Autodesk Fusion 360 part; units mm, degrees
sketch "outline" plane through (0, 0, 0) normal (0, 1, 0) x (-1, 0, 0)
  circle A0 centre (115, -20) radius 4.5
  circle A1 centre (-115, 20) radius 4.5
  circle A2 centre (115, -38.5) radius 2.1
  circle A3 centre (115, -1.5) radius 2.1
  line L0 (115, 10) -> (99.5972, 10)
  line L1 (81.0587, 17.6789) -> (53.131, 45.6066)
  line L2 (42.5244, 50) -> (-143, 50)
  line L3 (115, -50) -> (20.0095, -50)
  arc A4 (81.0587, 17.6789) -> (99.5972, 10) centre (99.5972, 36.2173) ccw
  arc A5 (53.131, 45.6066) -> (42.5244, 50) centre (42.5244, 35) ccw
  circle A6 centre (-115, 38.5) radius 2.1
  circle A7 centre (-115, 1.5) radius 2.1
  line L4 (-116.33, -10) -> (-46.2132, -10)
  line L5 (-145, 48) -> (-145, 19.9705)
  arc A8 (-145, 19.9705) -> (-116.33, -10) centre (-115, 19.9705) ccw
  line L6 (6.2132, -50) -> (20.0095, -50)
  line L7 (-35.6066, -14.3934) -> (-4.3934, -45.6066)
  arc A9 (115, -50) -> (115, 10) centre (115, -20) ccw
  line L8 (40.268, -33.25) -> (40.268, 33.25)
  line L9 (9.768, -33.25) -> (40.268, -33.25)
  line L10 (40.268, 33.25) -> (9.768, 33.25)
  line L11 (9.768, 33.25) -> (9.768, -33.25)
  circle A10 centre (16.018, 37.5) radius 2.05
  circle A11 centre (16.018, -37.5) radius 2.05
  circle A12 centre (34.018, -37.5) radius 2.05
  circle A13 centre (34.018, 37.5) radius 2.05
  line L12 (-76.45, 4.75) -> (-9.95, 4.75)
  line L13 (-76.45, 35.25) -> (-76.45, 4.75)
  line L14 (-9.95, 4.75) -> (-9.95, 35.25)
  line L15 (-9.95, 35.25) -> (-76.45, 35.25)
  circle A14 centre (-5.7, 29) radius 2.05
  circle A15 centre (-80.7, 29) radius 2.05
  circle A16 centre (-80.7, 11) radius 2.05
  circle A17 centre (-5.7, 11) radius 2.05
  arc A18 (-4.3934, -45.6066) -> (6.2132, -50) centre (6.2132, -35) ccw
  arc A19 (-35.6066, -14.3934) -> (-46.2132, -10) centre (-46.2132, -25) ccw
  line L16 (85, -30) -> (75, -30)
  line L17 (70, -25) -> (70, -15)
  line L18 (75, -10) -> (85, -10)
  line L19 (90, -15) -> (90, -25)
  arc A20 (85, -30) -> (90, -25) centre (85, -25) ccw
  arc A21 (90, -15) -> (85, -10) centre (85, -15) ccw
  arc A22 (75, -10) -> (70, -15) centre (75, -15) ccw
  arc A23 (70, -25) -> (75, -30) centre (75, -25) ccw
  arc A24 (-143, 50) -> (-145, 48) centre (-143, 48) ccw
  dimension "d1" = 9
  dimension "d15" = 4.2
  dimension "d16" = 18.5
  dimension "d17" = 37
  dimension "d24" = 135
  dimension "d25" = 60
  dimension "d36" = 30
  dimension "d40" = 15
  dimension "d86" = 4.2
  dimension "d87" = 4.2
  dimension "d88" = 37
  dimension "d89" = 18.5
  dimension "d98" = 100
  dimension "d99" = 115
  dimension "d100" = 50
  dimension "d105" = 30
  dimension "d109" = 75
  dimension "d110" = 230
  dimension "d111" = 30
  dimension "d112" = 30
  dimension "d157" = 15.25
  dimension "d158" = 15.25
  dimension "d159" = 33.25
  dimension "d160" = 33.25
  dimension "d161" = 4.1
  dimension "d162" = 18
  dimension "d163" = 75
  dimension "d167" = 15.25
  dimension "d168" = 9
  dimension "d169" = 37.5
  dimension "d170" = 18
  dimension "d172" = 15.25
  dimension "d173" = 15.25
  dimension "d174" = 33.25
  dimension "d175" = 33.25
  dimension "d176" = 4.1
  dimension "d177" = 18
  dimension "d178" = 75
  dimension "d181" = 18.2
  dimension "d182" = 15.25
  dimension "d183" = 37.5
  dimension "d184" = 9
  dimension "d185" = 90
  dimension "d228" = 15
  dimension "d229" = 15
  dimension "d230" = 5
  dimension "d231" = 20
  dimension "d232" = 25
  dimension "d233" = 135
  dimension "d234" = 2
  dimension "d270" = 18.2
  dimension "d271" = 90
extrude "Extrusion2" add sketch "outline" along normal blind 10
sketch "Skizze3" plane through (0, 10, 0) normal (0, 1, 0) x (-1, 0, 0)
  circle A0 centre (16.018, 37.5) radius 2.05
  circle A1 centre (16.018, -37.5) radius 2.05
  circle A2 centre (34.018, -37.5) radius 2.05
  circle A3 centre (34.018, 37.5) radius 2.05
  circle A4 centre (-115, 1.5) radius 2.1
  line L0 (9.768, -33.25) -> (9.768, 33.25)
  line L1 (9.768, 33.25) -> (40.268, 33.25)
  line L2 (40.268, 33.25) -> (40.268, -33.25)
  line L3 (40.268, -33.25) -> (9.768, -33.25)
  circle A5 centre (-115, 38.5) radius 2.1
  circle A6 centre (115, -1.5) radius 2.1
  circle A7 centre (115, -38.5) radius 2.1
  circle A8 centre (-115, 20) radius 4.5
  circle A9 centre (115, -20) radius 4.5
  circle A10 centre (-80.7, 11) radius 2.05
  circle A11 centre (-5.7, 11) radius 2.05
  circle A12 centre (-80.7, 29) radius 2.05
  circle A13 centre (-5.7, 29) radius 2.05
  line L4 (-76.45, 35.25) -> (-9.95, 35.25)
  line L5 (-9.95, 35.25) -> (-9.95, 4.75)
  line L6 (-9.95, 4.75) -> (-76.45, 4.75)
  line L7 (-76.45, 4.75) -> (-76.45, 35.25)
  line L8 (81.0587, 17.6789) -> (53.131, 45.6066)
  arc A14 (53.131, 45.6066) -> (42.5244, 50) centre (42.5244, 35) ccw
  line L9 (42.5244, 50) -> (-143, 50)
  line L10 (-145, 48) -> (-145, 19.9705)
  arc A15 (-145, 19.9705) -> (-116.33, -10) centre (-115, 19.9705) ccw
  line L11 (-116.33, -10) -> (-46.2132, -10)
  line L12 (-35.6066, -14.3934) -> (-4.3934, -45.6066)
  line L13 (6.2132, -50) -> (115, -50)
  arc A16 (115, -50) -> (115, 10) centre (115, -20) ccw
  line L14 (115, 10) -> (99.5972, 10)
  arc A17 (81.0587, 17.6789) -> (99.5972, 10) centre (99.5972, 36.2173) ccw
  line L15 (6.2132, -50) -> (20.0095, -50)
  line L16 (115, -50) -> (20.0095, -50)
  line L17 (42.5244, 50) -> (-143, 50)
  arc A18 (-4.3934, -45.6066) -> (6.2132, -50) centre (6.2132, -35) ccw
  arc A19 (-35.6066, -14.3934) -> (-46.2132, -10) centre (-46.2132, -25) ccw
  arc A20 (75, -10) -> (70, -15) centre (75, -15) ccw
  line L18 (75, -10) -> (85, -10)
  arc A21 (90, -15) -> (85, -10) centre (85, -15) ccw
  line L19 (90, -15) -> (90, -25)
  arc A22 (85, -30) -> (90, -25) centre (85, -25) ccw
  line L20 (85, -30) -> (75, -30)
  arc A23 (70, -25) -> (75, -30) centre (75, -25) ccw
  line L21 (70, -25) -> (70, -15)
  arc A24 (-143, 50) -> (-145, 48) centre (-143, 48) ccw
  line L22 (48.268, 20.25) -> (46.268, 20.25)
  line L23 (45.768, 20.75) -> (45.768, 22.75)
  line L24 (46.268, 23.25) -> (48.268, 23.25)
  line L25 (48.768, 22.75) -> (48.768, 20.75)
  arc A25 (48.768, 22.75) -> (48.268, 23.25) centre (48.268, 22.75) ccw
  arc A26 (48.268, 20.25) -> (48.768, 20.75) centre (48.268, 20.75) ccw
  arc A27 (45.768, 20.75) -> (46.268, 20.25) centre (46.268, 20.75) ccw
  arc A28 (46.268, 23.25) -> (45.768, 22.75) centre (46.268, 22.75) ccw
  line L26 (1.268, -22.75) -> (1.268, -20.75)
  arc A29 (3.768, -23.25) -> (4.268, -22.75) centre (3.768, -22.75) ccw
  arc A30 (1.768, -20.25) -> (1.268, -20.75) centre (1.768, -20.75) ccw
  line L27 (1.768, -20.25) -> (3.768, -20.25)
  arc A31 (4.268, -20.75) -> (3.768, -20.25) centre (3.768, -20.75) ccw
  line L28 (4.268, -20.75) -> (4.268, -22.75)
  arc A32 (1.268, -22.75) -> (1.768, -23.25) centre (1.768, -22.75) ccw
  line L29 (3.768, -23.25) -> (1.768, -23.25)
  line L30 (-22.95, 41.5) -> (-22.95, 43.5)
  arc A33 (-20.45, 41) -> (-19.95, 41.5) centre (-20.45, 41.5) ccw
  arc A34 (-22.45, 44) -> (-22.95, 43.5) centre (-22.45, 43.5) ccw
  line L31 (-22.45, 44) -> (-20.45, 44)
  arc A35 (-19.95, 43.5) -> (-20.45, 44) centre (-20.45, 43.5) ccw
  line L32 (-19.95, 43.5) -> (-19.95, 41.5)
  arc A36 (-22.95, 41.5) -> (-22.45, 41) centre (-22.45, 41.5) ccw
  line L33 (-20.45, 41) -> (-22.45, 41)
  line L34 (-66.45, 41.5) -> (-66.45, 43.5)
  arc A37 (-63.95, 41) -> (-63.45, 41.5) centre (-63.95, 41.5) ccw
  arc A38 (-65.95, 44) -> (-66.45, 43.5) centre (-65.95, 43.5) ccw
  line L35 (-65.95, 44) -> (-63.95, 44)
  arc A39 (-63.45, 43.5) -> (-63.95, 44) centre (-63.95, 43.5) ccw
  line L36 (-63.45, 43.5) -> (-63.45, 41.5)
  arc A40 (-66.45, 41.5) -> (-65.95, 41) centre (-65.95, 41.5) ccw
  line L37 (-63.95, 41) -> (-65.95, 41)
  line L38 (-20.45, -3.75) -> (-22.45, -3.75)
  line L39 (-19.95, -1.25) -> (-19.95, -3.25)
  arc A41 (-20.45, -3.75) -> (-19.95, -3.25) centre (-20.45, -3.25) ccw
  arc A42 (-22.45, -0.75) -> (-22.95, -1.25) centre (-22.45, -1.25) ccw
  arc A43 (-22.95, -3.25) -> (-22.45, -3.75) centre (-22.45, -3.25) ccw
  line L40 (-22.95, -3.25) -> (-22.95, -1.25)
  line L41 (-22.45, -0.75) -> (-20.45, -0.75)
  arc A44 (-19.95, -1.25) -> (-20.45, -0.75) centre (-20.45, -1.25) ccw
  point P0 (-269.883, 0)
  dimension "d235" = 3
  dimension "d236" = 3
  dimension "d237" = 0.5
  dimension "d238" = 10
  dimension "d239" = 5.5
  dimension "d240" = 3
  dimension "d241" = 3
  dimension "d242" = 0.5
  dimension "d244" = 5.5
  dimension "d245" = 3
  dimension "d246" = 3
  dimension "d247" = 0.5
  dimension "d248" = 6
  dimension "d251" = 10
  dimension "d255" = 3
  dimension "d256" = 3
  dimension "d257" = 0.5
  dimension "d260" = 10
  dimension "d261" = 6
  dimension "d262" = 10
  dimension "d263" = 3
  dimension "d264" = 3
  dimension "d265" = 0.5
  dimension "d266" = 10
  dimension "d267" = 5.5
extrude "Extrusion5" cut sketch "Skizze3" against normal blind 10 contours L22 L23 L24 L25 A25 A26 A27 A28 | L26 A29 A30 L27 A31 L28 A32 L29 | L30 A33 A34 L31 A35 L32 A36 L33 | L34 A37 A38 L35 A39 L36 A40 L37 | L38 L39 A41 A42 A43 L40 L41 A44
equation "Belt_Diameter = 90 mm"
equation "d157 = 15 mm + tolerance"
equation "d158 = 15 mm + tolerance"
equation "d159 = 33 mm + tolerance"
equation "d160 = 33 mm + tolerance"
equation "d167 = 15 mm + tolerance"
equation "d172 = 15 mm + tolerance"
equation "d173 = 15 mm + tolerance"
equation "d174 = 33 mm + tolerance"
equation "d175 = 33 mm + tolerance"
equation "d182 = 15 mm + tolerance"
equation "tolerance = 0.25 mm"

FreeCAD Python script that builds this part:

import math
import FreeCAD as App
import Part
import Sketcher
Q = App.Units.Quantity


def add_polygon(sketch, points):
    """Adds a closed chain of lines whose ends are joined by coincident constraints."""
    first, n = sketch.GeometryCount, len(points)
    for a, b in zip(points, points[1:] + points[:1]):
        sketch.addGeometry(Part.LineSegment(App.Vector(*a, 0), App.Vector(*b, 0)), False)
    for i in range(n):
        sketch.addConstraint(Sketcher.Constraint("Coincident", first + i, 2, first + (i + 1) % n, 1))

doc = App.newDocument("Part")
body = doc.addObject("PartDesign::Body", "Body")

sketch1 = body.newObject("Sketcher::SketchObject", "Sketch")
sketch1.AttachmentSupport = (doc.getObject("XZ_Plane"), [""])
sketch1.MapMode = "FlatFace"
sketch1.addGeometry(Part.ArcOfCircle(Part.Circle(App.Vector(-115, -20, 0), App.Vector(0, 0, 1), 30), math.radians(90), math.radians(270)), False)
sketch1.addGeometry(Part.LineSegment(App.Vector(-115, 10, 0), App.Vector(-99.6, 10, 0)), False)
sketch1.addGeometry(Part.ArcOfCircle(Part.Circle(App.Vector(-99.6, 36.2, 0), App.Vector(0, 0, 1), 26.2), math.radians(-90), math.radians(-45)), False)
sketch1.addGeometry(Part.LineSegment(App.Vector(-81.1, 17.7, 0), App.Vector(-53.1, 45.6, 0)), False)
sketch1.addGeometry(Part.ArcOfCircle(Part.Circle(App.Vector(-42.5, 35, 0), App.Vector(0, 0, 1), 15), math.radians(90), math.radians(135)), False)
sketch1.addGeometry(Part.LineSegment(App.Vector(-42.5, 50, 0), App.Vector(143, 50, 0)), False)
sketch1.addGeometry(Part.ArcOfCircle(Part.Circle(App.Vector(143, 48, 0), App.Vector(0, 0, 1), 2), math.radians(0), math.radians(90)), False)
sketch1.addGeometry(Part.LineSegment(App.Vector(145, 48, 0), App.Vector(145, 20, 0)), False)
sketch1.addGeometry(Part.ArcOfCircle(Part.Circle(App.Vector(115, 20, 0), App.Vector(0, 0, 1), 30), math.radians(-87), math.radians(0)), False)
sketch1.addGeometry(Part.LineSegment(App.Vector(116.3, -10, 0), App.Vector(46.2, -10, 0)), False)
sketch1.addGeometry(Part.ArcOfCircle(Part.Circle(App.Vector(46.2, -25, 0), App.Vector(0, 0, 1), 15), math.radians(90), math.radians(135)), False)
sketch1.addGeometry(Part.LineSegment(App.Vector(35.6, -14.4, 0), App.Vector(4.4, -45.6, 0)), False)
sketch1.addGeometry(Part.ArcOfCircle(Part.Circle(App.Vector(-6.2, -35, 0), App.Vector(0, 0, 1), 15), math.radians(-90), math.radians(-45)), False)
sketch1.addGeometry(Part.LineSegment(App.Vector(-6.2, -50, 0), App.Vector(-115, -50, 0)), False)
sketch1.addGeometry(Part.Circle(App.Vector(-16, -37.5, 0), App.Vector(0, 0, 1), 2), False)
sketch1.addGeometry(Part.Circle(App.Vector(-34, -37.5, 0), App.Vector(0, 0, 1), 2), False)
sketch1.addGeometry(Part.Circle(App.Vector(-115, -38.5, 0), App.Vector(0, 0, 1), 2.1), False)
sketch1.addGeometry(Part.ArcOfCircle(Part.Circle(App.Vector(-85, -25, 0), App.Vector(0, 0, 1), 5), math.radians(180), math.radians(270)), False)
sketch1.addGeometry(Part.LineSegment(App.Vector(-85, -30, 0), App.Vector(-75, -30, 0)), False)
sketch1.addGeometry(Part.ArcOfCircle(Part.Circle(App.Vector(-75, -25, 0), App.Vector(0, 0, 1), 5), math.radians(-90), math.radians(0)), False)
sketch1.addGeometry(Part.LineSegment(App.Vector(-70, -25, 0), App.Vector(-70, -15, 0)), False)
sketch1.addGeometry(Part.ArcOfCircle(Part.Circle(App.Vector(-75, -15, 0), App.Vector(0, 0, 1), 5), math.radians(0), math.radians(90)), False)
sketch1.addGeometry(Part.LineSegment(App.Vector(-75, -10, 0), App.Vector(-85, -10, 0)), False)
sketch1.addGeometry(Part.ArcOfCircle(Part.Circle(App.Vector(-85, -15, 0), App.Vector(0, 0, 1), 5), math.radians(90), math.radians(180)), False)
sketch1.addGeometry(Part.LineSegment(App.Vector(-90, -15, 0), App.Vector(-90, -25, 0)), False)
sketch1.addGeometry(Part.Circle(App.Vector(-115, -20, 0), App.Vector(0, 0, 1), 4.5), False)
sketch1.addGeometry(Part.Circle(App.Vector(-115, -1.5, 0), App.Vector(0, 0, 1), 2.1), False)
sketch1.addGeometry(Part.Circle(App.Vector(115, 1.5, 0), App.Vector(0, 0, 1), 2.1), False)
sketch1.addGeometry(Part.Circle(App.Vector(80.7, 11, 0), App.Vector(0, 0, 1), 2), False)
sketch1.addGeometry(Part.Circle(App.Vector(115, 20, 0), App.Vector(0, 0, 1), 4.5), False)
sketch1.addGeometry(Part.Circle(App.Vector(5.7, 11, 0), App.Vector(0, 0, 1), 2), False)
add_polygon(sketch1, [(9.9, 4.8), (76.5, 4.8), (76.5, 35.2), (9.9, 35.2)])
sketch1.addGeometry(Part.Circle(App.Vector(80.7, 29, 0), App.Vector(0, 0, 1), 2), False)
sketch1.addGeometry(Part.Circle(App.Vector(115, 38.5, 0), App.Vector(0, 0, 1), 2.1), False)
sketch1.addGeometry(Part.Circle(App.Vector(5.7, 29, 0), App.Vector(0, 0, 1), 2), False)
add_polygon(sketch1, [(-40.3, 33.2), (-40.3, -33.2), (-9.8, -33.2), (-9.8, 33.2)])
sketch1.addGeometry(Part.Circle(App.Vector(-16, 37.5, 0), App.Vector(0, 0, 1), 2), False)
sketch1.addGeometry(Part.Circle(App.Vector(-34, 37.5, 0), App.Vector(0, 0, 1), 2), False)
sketch1.addConstraint([
    Sketcher.Constraint("Tangent", 0, 1, 1, 1),
    Sketcher.Constraint("Tangent", 1, 2, 2, 1),
    Sketcher.Constraint("Tangent", 2, 2, 3, 1),
    Sketcher.Constraint("Tangent", 3, 2, 4, 2),
    Sketcher.Constraint("Tangent", 4, 1, 5, 1),
    Sketcher.Constraint("Tangent", 5, 2, 6, 2),
    Sketcher.Constraint("Tangent", 6, 1, 7, 1),
    Sketcher.Constraint("Tangent", 7, 2, 8, 2),
    Sketcher.Constraint("Coincident", 8, 1, 9, 1),
    Sketcher.Constraint("Tangent", 9, 2, 10, 1),
    Sketcher.Constraint("Tangent", 10, 2, 11, 1),
    Sketcher.Constraint("Tangent", 11, 2, 12, 2),
    Sketcher.Constraint("Tangent", 12, 1, 13, 1),
    Sketcher.Constraint("Tangent", 13, 2, 0, 2),
    Sketcher.Constraint("Tangent", 17, 2, 18, 1),
    Sketcher.Constraint("Tangent", 18, 2, 19, 1),
    Sketcher.Constraint("Tangent", 19, 2, 20, 1),
    Sketcher.Constraint("Tangent", 20, 2, 21, 1),
    Sketcher.Constraint("Tangent", 21, 2, 22, 1),
    Sketcher.Constraint("Tangent", 22, 2, 23, 1),
    Sketcher.Constraint("Tangent", 23, 2, 24, 1),
    Sketcher.Constraint("Tangent", 24, 2, 17, 1),
    Sketcher.Constraint("Horizontal", 1),
    Sketcher.Constraint("Horizontal", 5),
    Sketcher.Constraint("Vertical", 7),
    Sketcher.Constraint("Horizontal", 9),
    Sketcher.Constraint("Horizontal", 13),
    Sketcher.Constraint("Horizontal", 18),
    Sketcher.Constraint("Vertical", 20),
    Sketcher.Constraint("Horizontal", 22),
    Sketcher.Constraint("Vertical", 24),
    Sketcher.Constraint("Horizontal", 31),
    Sketcher.Constraint("Vertical", 32),
    Sketcher.Constraint("Horizontal", 33),
    Sketcher.Constraint("Vertical", 34),
    Sketcher.Constraint("Vertical", 38),
    Sketcher.Constraint("Horizontal", 39),
    Sketcher.Constraint("Vertical", 40),
    Sketcher.Constraint("Horizontal", 41),
    Sketcher.Constraint("Coincident", 25, 3, 0, 3),
    Sketcher.Constraint("Equal", 0, 8),
    Sketcher.Constraint("Equal", 4, 10),
    Sketcher.Constraint("Equal", 10, 12),
    Sketcher.Constraint("Equal", 14, 15),
    Sketcher.Constraint("Equal", 17, 19),
    Sketcher.Constraint("Equal", 19, 21),
    Sketcher.Constraint("Equal", 21, 23),
    Sketcher.Constraint("Equal", 16, 26),
    Sketcher.Constraint("Equal", 26, 27),
    Sketcher.Constraint("Equal", 15, 28),
    Sketcher.Constraint("Equal", 25, 29),
    Sketcher.Constraint("Equal", 28, 30),
    Sketcher.Constraint("Equal", 30, 35),
    Sketcher.Constraint("Equal", 27, 36),
    Sketcher.Constraint("Equal", 35, 37),
    Sketcher.Constraint("Equal", 37, 42),
    Sketcher.Constraint("Equal", 42, 43),
    Sketcher.Constraint("Symmetric", 26, 3, 27, 3, -1, 1),
    Sketcher.Constraint("Symmetric", 0, 3, 29, 3, -1, 1),
    Sketcher.Constraint("Symmetric", 16, 3, 36, 3, -1, 1),
    Sketcher.Constraint("Symmetric", 14, 3, 42, 3, -1),
    Sketcher.Constraint("Symmetric", 15, 3, 43, 3, -1),
    Sketcher.Constraint("Parallel", 3, 11),
    Sketcher.Constraint("Horizontal", 14, 3, 15, 3),
    Sketcher.Constraint("Horizontal", 10, 3, 17, 3),
    Sketcher.Constraint("Horizontal", 28, 3, 30, 3),
    Sketcher.Constraint("Horizontal", 35, 3, 37, 3),
    Sketcher.Constraint("Horizontal", 9, 2, 21, 2),
    Sketcher.Constraint("Vertical", 0, 3, 16, 3),
    Sketcher.Constraint("Vertical", 25, 3, 26, 3),
    Sketcher.Constraint("Vertical", 8, 3, 27, 3),
    Sketcher.Constraint("Vertical", 28, 3, 35, 3),
    Sketcher.Constraint("Vertical", 30, 3, 37, 3),
    Sketcher.Constraint("Equal", 22, 20),
    Sketcher.Constraint("Equal", 41, 32),
    Sketcher.Constraint("Equal", 33, 38),
    Sketcher.Constraint("Diameter", 25, Q("9 mm")),
    Sketcher.Constraint("Radius", 0, Q("30 mm")),
    Sketcher.Constraint("Radius", 4, Q("15 mm")),
    Sketcher.Constraint("Radius", 6, Q("2 mm")),
    Sketcher.Constraint("Radius", 17, Q("5 mm")),
    Sketcher.Constraint("Diameter", 14, Q("4.1 mm")),
    Sketcher.Constraint("Diameter", 16, Q("4.2 mm")),
    Sketcher.Constraint("Angle", 11, Q("-135 deg")),
    Sketcher.Constraint("DistanceX", 0, 3, -1, 1, Q("115 mm")),
    Sketcher.Constraint("DistanceY", 0, 3, -1, 1, Q("20 mm")),
    Sketcher.Constraint("DistanceY", 10, 3, -1, 1, Q("25 mm")),
    Sketcher.Constraint("DistanceX", 19, 3, -1, 1, Q("75 mm")),
    Sketcher.Constraint("DistanceY", -1, 1, 4, 1, Q("50 mm")),
    Sketcher.Constraint("DistanceX", 15, 3, 14, 3, Q("18 mm")),
    Sketcher.Constraint("DistanceY", 16, 3, 26, 3, Q("37 mm")),
    Sketcher.Constraint("DistanceY", 28, 3, 6, 3, Q("37 mm")),
    Sketcher.Constraint("DistanceY", 28, 3, 35, 3, Q("18 mm")),
    Sketcher.Constraint("DistanceY", 14, 3, 42, 3, Q("75 mm")),
    Sketcher.Constraint("DistanceY", 40, 2, 33, 2, Q("2 mm")),
    Sketcher.Constraint("DistanceY", 16, 3, 0, 3, Q("18.5 mm")),
    Sketcher.Constraint("DistanceY", 38, 2, -1, 1, Q("33.25 mm")),
    Sketcher.Constraint("DistanceY", -1, 1, 40, 2, Q("33.25 mm")),
    Sketcher.Constraint("DistanceX", 39, 1, 39, 2, Q("30.5 mm")),
    Sketcher.Constraint("DistanceX", -1, 1, 28, 3, Q("80.7 mm")),
    Sketcher.Constraint("DistanceX", -1, 1, 30, 3, Q("5.7 mm")),
    Sketcher.Constraint("Radius", 2, Q("26.2173 mm")),
    Sketcher.Constraint("DistanceX", -1, 1, 8, 1, Q("116.33 mm")),
    Sketcher.Constraint("DistanceX", -1, 1, 31, 2, Q("76.45 mm")),
    Sketcher.Constraint("DistanceX", 38, 2, 15, 3, Q("6.25 mm")),
    Sketcher.Constraint("DistanceX", 1, 1, 1, 2, Q("15.4028 mm")),
    Sketcher.Constraint("DistanceX", 9, 2, 9, 1, Q("70.1168 mm")),
    Sketcher.Constraint("DistanceX", 14, 3, -1, 1, Q("16.018 mm")),
])
pad1 = body.newObject("PartDesign::Pad", "Pad")
pad1.Profile = sketch1
pad1.Length = 10
pad1.Reversed = True

sketch2 = body.newObject("Sketcher::SketchObject", "Sketch001")
sketch2.AttachmentSupport = (doc.getObject("XZ_Plane"), [""])
sketch2.MapMode = "FlatFace"
sketch2.AttachmentOffset = App.Placement(App.Vector(0, 0, -10), App.Rotation())
sketch2.addGeometry([
    Part.LineSegment(App.Vector(-46.3, 20.2, 0), App.Vector(-48.3, 20.2, 0)),
    Part.ArcOfCircle(Part.Circle(App.Vector(-48.3, 20.8, 0), App.Vector(0, 0, 1), 0.5), math.radians(180), math.radians(270)),
    Part.LineSegment(App.Vector(-48.8, 20.8, 0), App.Vector(-48.8, 22.8, 0)),
    Part.ArcOfCircle(Part.Circle(App.Vector(-48.3, 22.8, 0), App.Vector(0, 0, 1), 0.5), math.radians(90), math.radians(180)),
    Part.LineSegment(App.Vector(-48.3, 23.2, 0), App.Vector(-46.3, 23.2, 0)),
    Part.ArcOfCircle(Part.Circle(App.Vector(-46.3, 22.8, 0), App.Vector(0, 0, 1), 0.5), math.radians(0), math.radians(90)),
    Part.LineSegment(App.Vector(-45.8, 22.8, 0), App.Vector(-45.8, 20.8, 0)),
    Part.ArcOfCircle(Part.Circle(App.Vector(-46.3, 20.8, 0), App.Vector(0, 0, 1), 0.5), math.radians(-90), math.radians(0)),
    Part.LineSegment(App.Vector(-1.3, -20.8, 0), App.Vector(-1.3, -22.8, 0)),
    Part.ArcOfCircle(Part.Circle(App.Vector(-1.8, -22.8, 0), App.Vector(0, 0, 1), 0.5), math.radians(-90), math.radians(0)),
    Part.LineSegment(App.Vector(-1.8, -23.2, 0), App.Vector(-3.8, -23.2, 0)),
    Part.ArcOfCircle(Part.Circle(App.Vector(-3.8, -22.8, 0), App.Vector(0, 0, 1), 0.5), math.radians(180), math.radians(270)),
    Part.LineSegment(App.Vector(-4.3, -22.8, 0), App.Vector(-4.3, -20.8, 0)),
    Part.ArcOfCircle(Part.Circle(App.Vector(-3.8, -20.8, 0), App.Vector(0, 0, 1), 0.5), math.radians(90), math.radians(180)),
    Part.LineSegment(App.Vector(-3.8, -20.2, 0), App.Vector(-1.8, -20.2, 0)),
    Part.ArcOfCircle(Part.Circle(App.Vector(-1.8, -20.8, 0), App.Vector(0, 0, 1), 0.5), math.radians(0), math.radians(90)),
    Part.LineSegment(App.Vector(22.9, 43.5, 0), App.Vector(22.9, 41.5, 0)),
    Part.ArcOfCircle(Part.Circle(App.Vector(22.4, 41.5, 0), App.Vector(0, 0, 1), 0.5), math.radians(-90), math.radians(0)),
    Part.LineSegment(App.Vector(22.4, 41, 0), App.Vector(20.4, 41, 0)),
    Part.ArcOfCircle(Part.Circle(App.Vector(20.4, 41.5, 0), App.Vector(0, 0, 1), 0.5), math.radians(180), math.radians(270)),
    Part.LineSegment(App.Vector(19.9, 41.5, 0), App.Vector(19.9, 43.5, 0)),
    Part.ArcOfCircle(Part.Circle(App.Vector(20.4, 43.5, 0), App.Vector(0, 0, 1), 0.5), math.radians(90), math.radians(180)),
    Part.LineSegment(App.Vector(20.4, 44, 0), App.Vector(22.4, 44, 0)),
    Part.ArcOfCircle(Part.Circle(App.Vector(22.4, 43.5, 0), App.Vector(0, 0, 1), 0.5), math.radians(0), math.radians(90)),
    Part.LineSegment(App.Vector(66.5, 43.5, 0), App.Vector(66.5, 41.5, 0)),
    Part.ArcOfCircle(Part.Circle(App.Vector(66, 41.5, 0), App.Vector(0, 0, 1), 0.5), math.radians(-90), math.radians(0)),
    Part.LineSegment(App.Vector(66, 41, 0), App.Vector(64, 41, 0)),
    Part.ArcOfCircle(Part.Circle(App.Vector(64, 41.5, 0), App.Vector(0, 0, 1), 0.5), math.radians(180), math.radians(270)),
    Part.LineSegment(App.Vector(63.5, 41.5, 0), App.Vector(63.5, 43.5, 0)),
    Part.ArcOfCircle(Part.Circle(App.Vector(64, 43.5, 0), App.Vector(0, 0, 1), 0.5), math.radians(90), math.radians(180)),
    Part.LineSegment(App.Vector(64, 44, 0), App.Vector(66, 44, 0)),
    Part.ArcOfCircle(Part.Circle(App.Vector(66, 43.5, 0), App.Vector(0, 0, 1), 0.5), math.radians(0), math.radians(90)),
    Part.LineSegment(App.Vector(22.4, -3.8, 0), App.Vector(20.4, -3.8, 0)),
    Part.ArcOfCircle(Part.Circle(App.Vector(20.4, -3.2, 0), App.Vector(0, 0, 1), 0.5), math.radians(180), math.radians(270)),
    Part.LineSegment(App.Vector(19.9, -3.2, 0), App.Vector(19.9, -1.2, 0)),
    Part.ArcOfCircle(Part.Circle(App.Vector(20.4, -1.2, 0), App.Vector(0, 0, 1), 0.5), math.radians(90), math.radians(180)),
    Part.LineSegment(App.Vector(20.4, -0.8, 0), App.Vector(22.4, -0.8, 0)),
    Part.ArcOfCircle(Part.Circle(App.Vector(22.4, -1.2, 0), App.Vector(0, 0, 1), 0.5), math.radians(0), math.radians(90)),
    Part.LineSegment(App.Vector(22.9, -1.2, 0), App.Vector(22.9, -3.2, 0)),
    Part.ArcOfCircle(Part.Circle(App.Vector(22.4, -3.2, 0), App.Vector(0, 0, 1), 0.5), math.radians(-90), math.radians(0)),
], False)
sketch2.addConstraint([
    Sketcher.Constraint("Tangent", 0, 2, 1, 2),
    Sketcher.Constraint("Tangent", 1, 1, 2, 1),
    Sketcher.Constraint("Tangent", 2, 2, 3, 2),
    Sketcher.Constraint("Tangent", 3, 1, 4, 1),
    Sketcher.Constraint("Tangent", 4, 2, 5, 2),
    Sketcher.Constraint("Tangent", 5, 1, 6, 1),
    Sketcher.Constraint("Tangent", 6, 2, 7, 2),
    Sketcher.Constraint("Tangent", 7, 1, 0, 1),
    Sketcher.Constraint("Tangent", 8, 2, 9, 2),
    Sketcher.Constraint("Tangent", 9, 1, 10, 1),
    Sketcher.Constraint("Tangent", 10, 2, 11, 2),
    Sketcher.Constraint("Tangent", 11, 1, 12, 1),
    Sketcher.Constraint("Tangent", 12, 2, 13, 2),
    Sketcher.Constraint("Tangent", 13, 1, 14, 1),
    Sketcher.Constraint("Tangent", 14, 2, 15, 2),
    Sketcher.Constraint("Tangent", 15, 1, 8, 1),
    Sketcher.Constraint("Tangent", 16, 2, 17, 2),
    Sketcher.Constraint("Tangent", 17, 1, 18, 1),
    Sketcher.Constraint("Tangent", 18, 2, 19, 2),
    Sketcher.Constraint("Tangent", 19, 1, 20, 1),
    Sketcher.Constraint("Tangent", 20, 2, 21, 2),
    Sketcher.Constraint("Tangent", 21, 1, 22, 1),
    Sketcher.Constraint("Tangent", 22, 2, 23, 2),
    Sketcher.Constraint("Tangent", 23, 1, 16, 1),
    Sketcher.Constraint("Tangent", 24, 2, 25, 2),
    Sketcher.Constraint("Tangent", 25, 1, 26, 1),
    Sketcher.Constraint("Tangent", 26, 2, 27, 2),
    Sketcher.Constraint("Tangent", 27, 1, 28, 1),
    Sketcher.Constraint("Tangent", 28, 2, 29, 2),
    Sketcher.Constraint("Tangent", 29, 1, 30, 1),
    Sketcher.Constraint("Tangent", 30, 2, 31, 2),
    Sketcher.Constraint("Tangent", 31, 1, 24, 1),
    Sketcher.Constraint("Tangent", 32, 2, 33, 2),
    Sketcher.Constraint("Tangent", 33, 1, 34, 1),
    Sketcher.Constraint("Tangent", 34, 2, 35, 2),
    Sketcher.Constraint("Tangent", 35, 1, 36, 1),
    Sketcher.Constraint("Tangent", 36, 2, 37, 2),
    Sketcher.Constraint("Tangent", 37, 1, 38, 1),
    Sketcher.Constraint("Tangent", 38, 2, 39, 2),
    Sketcher.Constraint("Tangent", 39, 1, 32, 1),
    Sketcher.Constraint("Horizontal", 0),
    Sketcher.Constraint("Vertical", 2),
    Sketcher.Constraint("Horizontal", 4),
    Sketcher.Constraint("Vertical", 6),
    Sketcher.Constraint("Vertical", 8),
    Sketcher.Constraint("Horizontal", 10),
    Sketcher.Constraint("Vertical", 12),
    Sketcher.Constraint("Horizontal", 14),
    Sketcher.Constraint("Vertical", 16),
    Sketcher.Constraint("Horizontal", 18),
    Sketcher.Constraint("Vertical", 20),
    Sketcher.Constraint("Horizontal", 22),
    Sketcher.Constraint("Vertical", 24),
    Sketcher.Constraint("Horizontal", 26),
    Sketcher.Constraint("Vertical", 28),
    Sketcher.Constraint("Horizontal", 30),
    Sketcher.Constraint("Horizontal", 32),
    Sketcher.Constraint("Vertical", 34),
    Sketcher.Constraint("Horizontal", 36),
    Sketcher.Constraint("Vertical", 38),
    Sketcher.Constraint("Equal", 1, 3),
    Sketcher.Constraint("Equal", 3, 5),
    Sketcher.Constraint("Equal", 5, 7),
    Sketcher.Constraint("Equal", 7, 9),
    Sketcher.Constraint("Equal", 9, 11),
    Sketcher.Constraint("Equal", 11, 13),
    Sketcher.Constraint("Equal", 13, 15),
    Sketcher.Constraint("Equal", 15, 17),
    Sketcher.Constraint("Equal", 17, 19),
    Sketcher.Constraint("Equal", 19, 21),
    Sketcher.Constraint("Equal", 21, 23),
    Sketcher.Constraint("Equal", 23, 25),
    Sketcher.Constraint("Equal", 25, 27),
    Sketcher.Constraint("Equal", 27, 29),
    Sketcher.Constraint("Equal", 29, 31),
    Sketcher.Constraint("Equal", 31, 33),
    Sketcher.Constraint("Equal", 33, 35),
    Sketcher.Constraint("Equal", 35, 37),
    Sketcher.Constraint("Equal", 37, 39),
    Sketcher.Constraint("Horizontal", 19, 3, 25, 3),
    Sketcher.Constraint("Horizontal", 23, 3, 29, 3),
    Sketcher.Constraint("Vertical", 21, 3, 33, 3),
    Sketcher.Constraint("Vertical", 23, 3, 37, 3),
    Sketcher.Constraint("Equal", 4, 10),
    Sketcher.Constraint("Equal", 14, 18),
    Sketcher.Constraint("Equal", 22, 26),
    Sketcher.Constraint("Equal", 36, 2),
    Sketcher.Constraint("Equal", 6, 8),
    Sketcher.Constraint("Equal", 12, 16),
    Sketcher.Constraint("Equal", 28, 34),
    Sketcher.Constraint("Radius", 1, Q("0.5 mm")),
    Sketcher.Constraint("DistanceX", 0, 2, 0, 1, Q("2 mm")),
    Sketcher.Constraint("DistanceY", -1, 1, 17, 1, Q("41 mm")),
    Sketcher.Constraint("DistanceY", 13, 3, 0, 2, Q("41 mm")),
    Sketcher.Constraint("DistanceX", 16, 2, 27, 3, Q("41 mm")),
    Sketcher.Constraint("DistanceY", 15, 1, 32, 2, Q("17 mm")),
    Sketcher.Constraint("DistanceX", 7, 3, 9, 3, Q("44.5 mm")),
    Sketcher.Constraint("DistanceY", -1, 1, 1, 3, Q("20.75 mm")),
    Sketcher.Constraint("DistanceX", -1, 1, 17, 3, Q("22.45 mm")),
    Sketcher.Constraint("DistanceX", 1, 3, -1, 1, Q("48.268 mm")),
])
pocket1 = body.newObject("PartDesign::Pocket", "Pocket")
pocket1.Profile = sketch2
pocket1.Length = 10
pocket1.Reversed = True

doc.recompute()
